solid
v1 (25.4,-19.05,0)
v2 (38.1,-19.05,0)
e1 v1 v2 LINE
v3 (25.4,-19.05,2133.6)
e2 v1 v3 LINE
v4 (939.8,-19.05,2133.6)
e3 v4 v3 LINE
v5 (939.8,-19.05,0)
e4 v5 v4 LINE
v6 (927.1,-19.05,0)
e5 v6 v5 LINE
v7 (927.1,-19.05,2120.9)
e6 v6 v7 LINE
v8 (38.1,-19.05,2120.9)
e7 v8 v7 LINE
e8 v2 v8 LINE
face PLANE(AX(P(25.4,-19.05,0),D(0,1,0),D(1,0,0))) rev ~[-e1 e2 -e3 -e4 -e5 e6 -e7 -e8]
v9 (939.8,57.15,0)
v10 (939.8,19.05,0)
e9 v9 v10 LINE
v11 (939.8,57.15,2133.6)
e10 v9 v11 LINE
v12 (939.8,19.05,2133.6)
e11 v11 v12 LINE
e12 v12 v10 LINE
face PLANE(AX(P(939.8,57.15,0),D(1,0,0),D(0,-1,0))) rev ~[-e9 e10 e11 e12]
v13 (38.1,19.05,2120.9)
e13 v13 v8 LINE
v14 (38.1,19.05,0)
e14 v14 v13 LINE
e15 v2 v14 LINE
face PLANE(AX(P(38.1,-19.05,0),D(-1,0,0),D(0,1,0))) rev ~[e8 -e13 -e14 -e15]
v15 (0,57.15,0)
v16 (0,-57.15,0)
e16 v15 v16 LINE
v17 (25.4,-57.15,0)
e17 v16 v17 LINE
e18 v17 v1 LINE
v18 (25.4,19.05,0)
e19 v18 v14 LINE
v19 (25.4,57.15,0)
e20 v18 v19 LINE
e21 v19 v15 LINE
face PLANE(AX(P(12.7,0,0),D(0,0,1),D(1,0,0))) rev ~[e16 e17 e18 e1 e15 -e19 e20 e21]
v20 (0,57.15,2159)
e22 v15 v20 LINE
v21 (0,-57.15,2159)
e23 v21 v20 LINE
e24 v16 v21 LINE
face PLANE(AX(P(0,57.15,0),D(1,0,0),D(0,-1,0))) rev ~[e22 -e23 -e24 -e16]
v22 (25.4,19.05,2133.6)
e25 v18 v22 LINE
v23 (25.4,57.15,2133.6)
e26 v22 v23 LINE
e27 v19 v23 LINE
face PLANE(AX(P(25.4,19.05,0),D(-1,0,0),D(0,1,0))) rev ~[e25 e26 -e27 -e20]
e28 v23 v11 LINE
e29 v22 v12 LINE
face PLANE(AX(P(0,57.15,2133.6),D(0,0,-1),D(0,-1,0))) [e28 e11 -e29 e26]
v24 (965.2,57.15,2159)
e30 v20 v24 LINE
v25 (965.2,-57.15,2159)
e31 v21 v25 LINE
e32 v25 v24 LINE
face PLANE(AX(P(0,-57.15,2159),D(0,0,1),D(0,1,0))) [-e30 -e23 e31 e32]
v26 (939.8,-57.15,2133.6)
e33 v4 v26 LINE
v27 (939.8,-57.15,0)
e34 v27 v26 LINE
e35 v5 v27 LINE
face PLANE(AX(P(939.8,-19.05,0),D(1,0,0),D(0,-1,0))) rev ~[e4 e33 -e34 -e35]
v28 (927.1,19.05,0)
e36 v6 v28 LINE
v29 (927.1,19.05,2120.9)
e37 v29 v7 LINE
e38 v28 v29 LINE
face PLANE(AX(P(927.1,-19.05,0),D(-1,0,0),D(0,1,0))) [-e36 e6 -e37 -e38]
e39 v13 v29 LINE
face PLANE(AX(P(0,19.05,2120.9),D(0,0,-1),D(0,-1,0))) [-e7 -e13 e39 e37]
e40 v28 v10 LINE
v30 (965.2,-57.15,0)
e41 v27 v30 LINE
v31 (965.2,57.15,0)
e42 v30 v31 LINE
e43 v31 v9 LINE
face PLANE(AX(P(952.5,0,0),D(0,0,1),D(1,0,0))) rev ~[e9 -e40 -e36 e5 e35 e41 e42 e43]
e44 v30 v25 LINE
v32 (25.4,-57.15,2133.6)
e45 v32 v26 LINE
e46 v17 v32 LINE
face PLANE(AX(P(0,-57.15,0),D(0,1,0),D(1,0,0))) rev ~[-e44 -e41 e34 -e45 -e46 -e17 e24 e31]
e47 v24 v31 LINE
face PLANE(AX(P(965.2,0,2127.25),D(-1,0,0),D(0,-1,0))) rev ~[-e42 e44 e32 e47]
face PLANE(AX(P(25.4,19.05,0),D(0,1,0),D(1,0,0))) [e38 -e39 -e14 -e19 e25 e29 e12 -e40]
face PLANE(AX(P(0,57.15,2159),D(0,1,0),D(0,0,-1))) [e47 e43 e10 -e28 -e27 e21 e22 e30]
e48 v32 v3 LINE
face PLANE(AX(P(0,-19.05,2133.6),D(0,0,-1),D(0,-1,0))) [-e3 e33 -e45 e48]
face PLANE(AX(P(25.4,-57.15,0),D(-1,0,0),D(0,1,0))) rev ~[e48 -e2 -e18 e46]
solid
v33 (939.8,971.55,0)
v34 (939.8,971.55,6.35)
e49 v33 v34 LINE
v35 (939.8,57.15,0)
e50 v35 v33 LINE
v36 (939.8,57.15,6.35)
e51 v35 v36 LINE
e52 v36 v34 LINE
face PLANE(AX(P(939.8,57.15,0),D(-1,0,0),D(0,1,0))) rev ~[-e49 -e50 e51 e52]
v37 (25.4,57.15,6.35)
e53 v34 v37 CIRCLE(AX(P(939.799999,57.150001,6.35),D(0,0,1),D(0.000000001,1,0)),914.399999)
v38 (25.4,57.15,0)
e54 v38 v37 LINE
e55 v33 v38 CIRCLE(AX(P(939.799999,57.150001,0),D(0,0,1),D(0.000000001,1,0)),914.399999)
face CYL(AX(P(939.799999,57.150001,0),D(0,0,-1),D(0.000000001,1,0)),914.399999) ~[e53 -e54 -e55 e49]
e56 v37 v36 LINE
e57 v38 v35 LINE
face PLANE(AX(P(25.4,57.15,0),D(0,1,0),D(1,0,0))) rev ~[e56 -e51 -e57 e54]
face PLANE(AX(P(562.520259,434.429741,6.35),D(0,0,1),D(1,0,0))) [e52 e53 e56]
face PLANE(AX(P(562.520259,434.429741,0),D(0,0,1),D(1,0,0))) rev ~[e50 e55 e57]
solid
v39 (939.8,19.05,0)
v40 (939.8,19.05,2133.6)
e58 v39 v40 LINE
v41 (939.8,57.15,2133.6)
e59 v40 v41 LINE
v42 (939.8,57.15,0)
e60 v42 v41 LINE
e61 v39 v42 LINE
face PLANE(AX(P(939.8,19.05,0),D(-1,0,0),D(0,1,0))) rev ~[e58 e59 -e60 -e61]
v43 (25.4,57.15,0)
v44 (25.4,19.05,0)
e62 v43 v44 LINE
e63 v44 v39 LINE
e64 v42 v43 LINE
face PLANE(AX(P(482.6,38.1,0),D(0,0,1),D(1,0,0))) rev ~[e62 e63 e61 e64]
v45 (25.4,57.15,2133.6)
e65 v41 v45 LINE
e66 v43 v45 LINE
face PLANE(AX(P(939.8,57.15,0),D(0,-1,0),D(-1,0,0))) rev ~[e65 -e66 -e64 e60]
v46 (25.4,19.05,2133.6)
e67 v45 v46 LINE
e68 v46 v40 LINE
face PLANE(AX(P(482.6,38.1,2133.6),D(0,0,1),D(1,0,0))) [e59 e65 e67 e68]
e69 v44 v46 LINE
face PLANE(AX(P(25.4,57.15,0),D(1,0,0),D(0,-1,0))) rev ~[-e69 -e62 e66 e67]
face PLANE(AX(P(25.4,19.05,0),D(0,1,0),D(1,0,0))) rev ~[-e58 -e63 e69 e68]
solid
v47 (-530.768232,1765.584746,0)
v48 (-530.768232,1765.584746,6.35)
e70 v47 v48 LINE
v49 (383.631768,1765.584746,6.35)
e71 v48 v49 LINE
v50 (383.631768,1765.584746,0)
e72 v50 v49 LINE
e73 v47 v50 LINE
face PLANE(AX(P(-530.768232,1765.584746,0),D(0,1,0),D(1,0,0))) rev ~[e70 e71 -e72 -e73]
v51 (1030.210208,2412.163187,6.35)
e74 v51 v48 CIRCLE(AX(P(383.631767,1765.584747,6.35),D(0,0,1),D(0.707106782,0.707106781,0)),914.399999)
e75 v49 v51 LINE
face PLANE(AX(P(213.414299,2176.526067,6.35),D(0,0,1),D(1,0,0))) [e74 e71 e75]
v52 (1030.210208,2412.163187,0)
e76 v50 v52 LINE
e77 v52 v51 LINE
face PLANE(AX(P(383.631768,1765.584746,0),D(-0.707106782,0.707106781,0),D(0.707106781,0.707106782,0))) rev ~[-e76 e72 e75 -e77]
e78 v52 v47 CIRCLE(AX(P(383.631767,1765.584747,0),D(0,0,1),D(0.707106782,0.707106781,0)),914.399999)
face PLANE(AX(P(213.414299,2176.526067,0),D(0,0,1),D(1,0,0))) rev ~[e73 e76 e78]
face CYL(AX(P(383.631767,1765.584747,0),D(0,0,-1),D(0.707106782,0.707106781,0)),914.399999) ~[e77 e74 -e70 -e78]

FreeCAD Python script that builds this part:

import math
import FreeCAD as App
import Part
import Sketcher
Q = App.Units.Quantity


def add_polygon(sketch, points):
    """Adds a closed chain of lines whose ends are joined by coincident constraints."""
    first, n = sketch.GeometryCount, len(points)
    for a, b in zip(points, points[1:] + points[:1]):
        sketch.addGeometry(Part.LineSegment(App.Vector(*a, 0), App.Vector(*b, 0)), False)
    for i in range(n):
        sketch.addConstraint(Sketcher.Constraint("Coincident", first + i, 2, first + (i + 1) % n, 1))

doc = App.newDocument("Part")
body = doc.addObject("PartDesign::Body", "Body")
body.AllowCompound = True

# Sketch on XY plane
sketch1 = body.newObject("Sketcher::SketchObject", "Sketch")
sketch1.AttachmentSupport = (doc.getObject("XY_Plane"), [""])
sketch1.MapMode = "FlatFace"
add_polygon(sketch1, [(25, 57), (0, 57), (0, -57), (25, -57), (25, -19), (38, -19), (38, 19), (25, 19)])  # lines 0-7
add_polygon(sketch1, [(965, 57), (940, 57), (940, 19), (927, 19), (927, -19), (940, -19), (940, -57), (965, -57)])  # lines 8-15
sketch1.addConstraint([
    Sketcher.Constraint("Horizontal", 0),
    Sketcher.Constraint("Vertical", 1),
    Sketcher.Constraint("Horizontal", 2),
    Sketcher.Constraint("Vertical", 3),
    Sketcher.Constraint("Horizontal", 4),
    Sketcher.Constraint("Vertical", 5),
    Sketcher.Constraint("Horizontal", 6),
    Sketcher.Constraint("Vertical", 7),
    Sketcher.Constraint("Horizontal", 8),
    Sketcher.Constraint("Vertical", 9),
    Sketcher.Constraint("Horizontal", 10),
    Sketcher.Constraint("Vertical", 11),
    Sketcher.Constraint("Horizontal", 12),
    Sketcher.Constraint("Vertical", 13),
    Sketcher.Constraint("Horizontal", 14),
    Sketcher.Constraint("Vertical", 15),
    Sketcher.Constraint("Symmetric", 0, 2, 1, 2, -1, 1),
    Sketcher.Constraint("Symmetric", 3, 2, 6, 2, -1),
    Sketcher.Constraint("Symmetric", 9, 2, 12, 2, -1),
    Sketcher.Constraint("Horizontal", 7, 2, 8, 2),
    Sketcher.Constraint("Horizontal", 6, 2, 9, 2),
    Sketcher.Constraint("Horizontal", 2, 2, 13, 2),
    Sketcher.Constraint("Equal", 2, 8),
    Sketcher.Constraint("Equal", 6, 10),
    Sketcher.Constraint("Equal", 3, 5),
    Sketcher.Constraint("DistanceX", 0, 2, 0, 1, Q("1 in")),
    Sketcher.Constraint("DistanceX", 4, 1, 4, 2, Q("0.5 in")),
    Sketcher.Constraint("DistanceY", 1, 2, 1, 1, Q("4.5 in")),
    Sketcher.Constraint("DistanceX", -1, 1, 8, 2, Q("37 in")),
])
pad1 = body.newObject("PartDesign::Pad", "Pad")
pad1.Profile = sketch1
pad1.Length = Q("84 in")

# Sketch on YZ plane
sketch2 = body.newObject("Sketcher::SketchObject", "Sketch001")
sketch2.AttachmentSupport = (doc.getObject("YZ_Plane"), [""])
sketch2.MapMode = "FlatFace"
add_polygon(sketch2, [(19, 2134), (19, 2121), (-19, 2121), (-19, 2134), (-57, 2134), (-57, 2159), (57, 2159), (57, 2134)])  # lines 0-7
sketch2.addConstraint([
    Sketcher.Constraint("Vertical", 0),
    Sketcher.Constraint("Horizontal", 1),
    Sketcher.Constraint("Vertical", 2),
    Sketcher.Constraint("Horizontal", 3),
    Sketcher.Constraint("Vertical", 4),
    Sketcher.Constraint("Horizontal", 5),
    Sketcher.Constraint("Vertical", 6),
    Sketcher.Constraint("Horizontal", 7),
    Sketcher.Constraint("Symmetric", 3, 2, 6, 2, -2),
    Sketcher.Constraint("Equal", 1, 3),
    Sketcher.Constraint("Equal", 3, 7),
    Sketcher.Constraint("DistanceY", 4, 1, 4, 2, Q("1 in")),
    Sketcher.Constraint("DistanceX", 1, 2, 1, 1, Q("1.5 in")),
    Sketcher.Constraint("DistanceY", 0, 2, 0, 1, Q("0.5 in")),
    Sketcher.Constraint("DistanceY", -1, 1, 2, 2, Q("84 in")),
])
pad2 = body.newObject("PartDesign::Pad", "Pad001")
pad2.Profile = sketch2
pad2.Length = Q("38 in")
body2 = doc.addObject("PartDesign::Body", "Body001")

# Sketch on XY plane
sketch3 = body2.newObject("Sketcher::SketchObject", "Sketch002")
sketch3.AttachmentSupport = (doc.getObject("XY_Plane001"), [""])
sketch3.MapMode = "FlatFace"
add_polygon(sketch3, [(940, 19), (940, 57), (25, 57), (25, 19)])  # lines 0-3
sketch3.addConstraint([
    Sketcher.Constraint("Vertical", 0),
    Sketcher.Constraint("Horizontal", 1),
    Sketcher.Constraint("Vertical", 2),
    Sketcher.Constraint("Horizontal", 3),
    Sketcher.Constraint("DistanceX", 1, 2, 1, 1, Q("36 in")),
    Sketcher.Constraint("DistanceY", 0, 1, 0, 2, Q("1.5 in")),
    Sketcher.Constraint("DistanceX", -1, 1, 0, 2, Q("37 in")),
    Sketcher.Constraint("DistanceY", -1, 1, 0, 2, Q("2.25 in")),
])
pad3 = body2.newObject("PartDesign::Pad", "Pad002")
pad3.Profile = sketch3
pad3.Length = Q("84 in")
body3 = doc.addObject("PartDesign::Body", "Body002")
body3.AllowCompound = True

# Sketch on XY plane
sketch4 = body3.newObject("Sketcher::SketchObject", "Sketch003")
sketch4.AttachmentSupport = (doc.getObject("XY_Plane002"), [""])
sketch4.MapMode = "FlatFace"
sketch4.addGeometry([
    Part.LineSegment(App.Vector(25, 57, 0), App.Vector(940, 57, 0)),  # 0
    Part.LineSegment(App.Vector(940, 57, 0), App.Vector(940, 972, 0)),  # 1
    Part.ArcOfCircle(Part.Circle(App.Vector(940, 57, 0), App.Vector(0, 0, 1), 914), math.radians(90), math.radians(180)),  # 2
    Part.ArcOfCircle(Part.Circle(App.Vector(384, 1766, 0), App.Vector(0, 0, 1), 914), math.radians(45), math.radians(180)),  # 3
    Part.LineSegment(App.Vector(-531, 1766, 0), App.Vector(384, 1766, 0)),  # 4
    Part.LineSegment(App.Vector(384, 1766, 0), App.Vector(1030, 2412, 0)),  # 5
], False)
sketch4.addConstraint([
    Sketcher.Constraint("Coincident", 0, 2, 1, 1),
    Sketcher.Constraint("Coincident", 1, 2, 2, 1),
    Sketcher.Constraint("Coincident", 2, 2, 0, 1),
    Sketcher.Constraint("Coincident", 3, 2, 4, 1),
    Sketcher.Constraint("Coincident", 4, 2, 5, 1),
    Sketcher.Constraint("Coincident", 5, 2, 3, 1),
    Sketcher.Constraint("Horizontal", 0),
    Sketcher.Constraint("Vertical", 1),
    Sketcher.Constraint("Horizontal", 4),
    Sketcher.Constraint("Coincident", 0, 2, 2, 3),
    Sketcher.Constraint("Coincident", 4, 2, 3, 3),
    Sketcher.Constraint("Equal", 2, 3),
    Sketcher.Constraint("Radius", 2, Q("36 in")),
    Sketcher.Constraint("DistanceX", -1, 1, 2, 3, Q("37 in")),
    Sketcher.Constraint("Angle", 5, Q("45 deg")),
    Sketcher.Constraint("DistanceY", -1, 1, 2, 3, Q("2.25 in")),
    Sketcher.Constraint("DistanceX", 3, 2, -1, 1, Q("530.768232 mm")),
    Sketcher.Constraint("DistanceY", -1, 1, 3, 3, Q("1765.584747 mm")),
])
pad4 = body3.newObject("PartDesign::Pad", "Pad003")
pad4.Profile = sketch4
pad4.Length = Q("0.25 in")

doc.recompute()
